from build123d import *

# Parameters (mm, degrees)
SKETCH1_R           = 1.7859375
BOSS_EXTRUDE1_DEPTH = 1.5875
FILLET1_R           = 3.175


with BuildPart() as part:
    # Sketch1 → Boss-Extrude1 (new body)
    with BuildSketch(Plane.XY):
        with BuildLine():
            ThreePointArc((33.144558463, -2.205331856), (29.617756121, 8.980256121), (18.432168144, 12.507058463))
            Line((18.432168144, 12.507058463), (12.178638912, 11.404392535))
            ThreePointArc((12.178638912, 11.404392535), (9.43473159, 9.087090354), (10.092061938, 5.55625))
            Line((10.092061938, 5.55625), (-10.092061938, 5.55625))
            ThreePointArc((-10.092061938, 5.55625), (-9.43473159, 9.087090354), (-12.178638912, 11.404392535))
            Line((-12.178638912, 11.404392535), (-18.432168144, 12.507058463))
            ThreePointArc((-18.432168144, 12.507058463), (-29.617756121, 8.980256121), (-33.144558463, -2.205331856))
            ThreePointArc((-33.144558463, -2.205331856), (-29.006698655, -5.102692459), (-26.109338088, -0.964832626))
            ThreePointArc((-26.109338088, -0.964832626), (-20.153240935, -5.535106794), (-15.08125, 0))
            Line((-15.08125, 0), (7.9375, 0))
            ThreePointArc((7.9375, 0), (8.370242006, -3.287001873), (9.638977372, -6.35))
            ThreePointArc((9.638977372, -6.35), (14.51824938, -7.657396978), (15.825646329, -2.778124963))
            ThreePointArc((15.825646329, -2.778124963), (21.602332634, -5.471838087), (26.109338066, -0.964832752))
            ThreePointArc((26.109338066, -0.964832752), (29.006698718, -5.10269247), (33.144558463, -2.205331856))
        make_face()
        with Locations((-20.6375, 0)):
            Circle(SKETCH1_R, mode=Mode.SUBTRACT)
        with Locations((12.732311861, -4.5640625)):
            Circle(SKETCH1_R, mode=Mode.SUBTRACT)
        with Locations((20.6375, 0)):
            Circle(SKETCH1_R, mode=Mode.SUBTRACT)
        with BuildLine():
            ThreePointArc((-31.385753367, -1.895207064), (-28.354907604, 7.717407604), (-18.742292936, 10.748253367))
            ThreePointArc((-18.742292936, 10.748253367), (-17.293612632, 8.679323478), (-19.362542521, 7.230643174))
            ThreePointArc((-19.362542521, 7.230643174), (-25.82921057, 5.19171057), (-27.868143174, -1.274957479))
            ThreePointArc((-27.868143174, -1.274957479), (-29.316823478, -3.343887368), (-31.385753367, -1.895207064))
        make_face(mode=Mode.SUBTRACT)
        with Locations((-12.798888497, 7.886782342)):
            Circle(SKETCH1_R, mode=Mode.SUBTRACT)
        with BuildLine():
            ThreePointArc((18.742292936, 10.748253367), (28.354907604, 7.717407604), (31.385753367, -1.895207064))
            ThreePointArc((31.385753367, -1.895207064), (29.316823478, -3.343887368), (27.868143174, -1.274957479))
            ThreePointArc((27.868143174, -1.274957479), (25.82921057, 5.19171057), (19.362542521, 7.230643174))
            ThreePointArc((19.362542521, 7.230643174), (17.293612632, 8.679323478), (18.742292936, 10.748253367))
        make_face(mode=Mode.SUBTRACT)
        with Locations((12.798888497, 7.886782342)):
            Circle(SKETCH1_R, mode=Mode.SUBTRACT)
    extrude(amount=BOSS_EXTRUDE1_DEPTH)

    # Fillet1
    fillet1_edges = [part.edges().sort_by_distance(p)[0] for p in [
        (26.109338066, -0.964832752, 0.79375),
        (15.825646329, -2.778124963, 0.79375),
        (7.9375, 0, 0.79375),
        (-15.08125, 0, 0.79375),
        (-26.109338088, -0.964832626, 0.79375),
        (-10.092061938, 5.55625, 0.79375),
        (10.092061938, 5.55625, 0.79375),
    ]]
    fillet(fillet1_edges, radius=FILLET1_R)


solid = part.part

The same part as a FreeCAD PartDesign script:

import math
import FreeCAD as App
import Part
import Sketcher

V = App.Vector
Q = App.Units.Quantity


def edges_at(feature, points):
    """Names of the edges that pass closest to the given points."""
    edges = feature.Shape.Edges
    near = lambda p: min(range(len(edges)), key=lambda i: edges[i].distToShape(Part.Vertex(*p))[0])
    return sorted({f"Edge{near(p) + 1}" for p in points})

doc = App.newDocument("Part")
body = doc.addObject("PartDesign::Body", "Body")

sketch1 = body.newObject("Sketcher::SketchObject", "Sketch")
sketch1.AttachmentSupport = (doc.getObject("XY_Plane"), [""])
sketch1.MapMode = "FlatFace"
sketch1.addGeometry([
    Part.ArcOfCircle(Part.Circle(V(20.6375, 0, 0), V(0, 0, 1), 12.7), math.radians(-10), math.radians(100)),
    Part.LineSegment(V(18.432168, 12.507058, 0), V(12.178639, 11.404393, 0)),
    Part.ArcOfCircle(Part.Circle(V(12.798888, 7.886782, 0), V(0, 0, 1), 3.571875), math.radians(100), math.radians(220.7279)),
    Part.LineSegment(V(10.092062, 5.55625, 0), V(-10.092062, 5.55625, 0)),
    Part.ArcOfCircle(Part.Circle(V(-12.798888, 7.886782, 0), V(0, 0, 1), 3.571875), math.radians(-40.7279), math.radians(80)),
    Part.LineSegment(V(-12.178639, 11.404393, 0), V(-18.432168, 12.507058, 0)),
    Part.ArcOfCircle(Part.Circle(V(-20.6375, 0, 0), V(0, 0, 1), 12.7), math.radians(80), math.radians(190)),
    Part.ArcOfCircle(Part.Circle(V(-29.626948, -1.585082, 0), V(0, 0, 1), 3.571875), math.radians(-170), math.radians(10.000001)),
    Part.ArcOfCircle(Part.Circle(V(-20.6375, 0, 0), V(0, 0, 1), 5.55625), math.radians(-170.000001), math.radians(0)),
    Part.LineSegment(V(-15.08125, 0, 0), V(7.9375, 0, 0)),
    Part.ArcOfCircle(Part.Circle(V(20.6375, 0, 0), V(0, 0, 1), 12.7), math.radians(180), math.radians(210)),
    Part.ArcOfCircle(Part.Circle(V(12.732312, -4.564063, 0), V(0, 0, 1), 3.571875), math.radians(-150), math.radians(30.000001)),
    Part.ArcOfCircle(Part.Circle(V(20.6375, 0, 0), V(0, 0, 1), 5.55625), math.radians(-150), math.radians(-10.000001)),
    Part.ArcOfCircle(Part.Circle(V(29.626948, -1.585082, 0), V(0, 0, 1), 3.571875), math.radians(170.000001), math.radians(350)),
    Part.Circle(V(-20.6375, 0, 0), V(0, 0, 1), 1.785937),
    Part.Circle(V(12.732312, -4.564063, 0), V(0, 0, 1), 1.785937),
    Part.Circle(V(20.6375, 0, 0), V(0, 0, 1), 1.785937),
    Part.ArcOfCircle(Part.Circle(V(-29.626948, -1.585082, 0), V(0, 0, 1), 1.785937), math.radians(-170), math.radians(10)),
    Part.ArcOfCircle(Part.Circle(V(-20.6375, 0, 0), V(0, 0, 1), 10.914062), math.radians(80), math.radians(190)),
    Part.ArcOfCircle(Part.Circle(V(-19.052418, 8.989448, 0), V(0, 0, 1), 1.785937), math.radians(-100), math.radians(80)),
    Part.ArcOfCircle(Part.Circle(V(-20.6375, 0, 0), V(0, 0, 1), 7.342187), math.radians(80), math.radians(190)),
    Part.Circle(V(-12.798888, 7.886782, 0), V(0, 0, 1), 1.785937),
    Part.ArcOfCircle(Part.Circle(V(19.052418, 8.989448, 0), V(0, 0, 1), 1.785937), math.radians(100), math.radians(280)),
    Part.ArcOfCircle(Part.Circle(V(20.6375, 0, 0), V(0, 0, 1), 10.914062), math.radians(-10), math.radians(100)),
    Part.ArcOfCircle(Part.Circle(V(29.626948, -1.585082, 0), V(0, 0, 1), 1.785937), math.radians(170), math.radians(350)),
    Part.ArcOfCircle(Part.Circle(V(20.6375, 0, 0), V(0, 0, 1), 7.342187), math.radians(-10), math.radians(100)),
    Part.Circle(V(12.798888, 7.886782, 0), V(0, 0, 1), 1.785937),
], False)
sketch1.addConstraint([
    Sketcher.Constraint("Tangent", 0, 2, 1, 1),
    Sketcher.Constraint("Tangent", 1, 2, 2, 1),
    Sketcher.Constraint("Coincident", 2, 2, 3, 1),
    Sketcher.Constraint("Coincident", 3, 2, 4, 1),
    Sketcher.Constraint("Tangent", 4, 2, 5, 1),
    Sketcher.Constraint("Tangent", 5, 2, 6, 1),
    Sketcher.Constraint("Tangent", 6, 2, 7, 1),
    Sketcher.Constraint("Tangent", 7, 2, 8, 1),
    Sketcher.Constraint("Coincident", 8, 2, 9, 1),
    Sketcher.Constraint("Coincident", 9, 2, 10, 1),
    Sketcher.Constraint("Tangent", 10, 2, 11, 1),
    Sketcher.Constraint("Tangent", 11, 2, 12, 1),
    Sketcher.Constraint("Tangent", 12, 2, 13, 1),
    Sketcher.Constraint("Tangent", 13, 2, 0, 1),
    Sketcher.Constraint("Tangent", 17, 1, 18, 2),
    Sketcher.Constraint("Tangent", 18, 1, 19, 2),
    Sketcher.Constraint("Tangent", 19, 1, 20, 1),
    Sketcher.Constraint("Tangent", 20, 2, 17, 2),
    Sketcher.Constraint("Tangent", 22, 1, 23, 2),
    Sketcher.Constraint("Tangent", 23, 1, 24, 2),
    Sketcher.Constraint("Tangent", 24, 1, 25, 1),
    Sketcher.Constraint("Tangent", 25, 2, 22, 2),
    Sketcher.Constraint("Horizontal", 3),
    Sketcher.Constraint("Horizontal", 9),
    Sketcher.Constraint("Coincident", 8, 3, 6, 3),
    Sketcher.Constraint("Coincident", 10, 3, 0, 3),
    Sketcher.Constraint("Coincident", 12, 3, 0, 3),
    Sketcher.Constraint("Coincident", 14, 3, 6, 3),
    Sketcher.Constraint("Coincident", 15, 3, 11, 3),
    Sketcher.Constraint("Coincident", 16, 3, 0, 3),
    Sketcher.Constraint("Coincident", 17, 3, 7, 3),
    Sketcher.Constraint("Coincident", 18, 3, 6, 3),
    Sketcher.Constraint("Coincident", 20, 3, 6, 3),
    Sketcher.Constraint("Coincident", 21, 3, 4, 3),
    Sketcher.Constraint("Coincident", 23, 3, 0, 3),
    Sketcher.Constraint("Coincident", 24, 3, 13, 3),
    Sketcher.Constraint("Coincident", 25, 3, 0, 3),
    Sketcher.Constraint("Coincident", 26, 3, 2, 3),
    Sketcher.Constraint("Equal", 2, 4),
    Sketcher.Constraint("Equal", 0, 6),
    Sketcher.Constraint("Equal", 4, 7),
    Sketcher.Constraint("Equal", 6, 10),
    Sketcher.Constraint("Equal", 7, 11),
    Sketcher.Constraint("Equal", 14, 15),
    Sketcher.Constraint("Equal", 15, 16),
    Sketcher.Constraint("Equal", 16, 17),
    Sketcher.Constraint("Equal", 19, 21),
    Sketcher.Constraint("Equal", 21, 22),
    Sketcher.Constraint("Equal", 24, 26),
    Sketcher.Constraint("Symmetric", 0, 3, 6, 3, -1, 1),
    Sketcher.Constraint("Symmetric", 2, 3, 4, 3, -2),
    Sketcher.Constraint("Symmetric", 7, 3, 13, 3, -2),
    Sketcher.Constraint("PointOnObject", 8, 2, -1),
    Sketcher.Constraint("Horizontal", 19, 3, 22, 3),
    Sketcher.Constraint("Radius", 0, Q("0.5 in")),
    Sketcher.Constraint("Diameter", 14, Q("0.140625 in")),
    Sketcher.Constraint("Angle", 1, Q("-170 deg")),
    Sketcher.Constraint("Radius", 2, Q("0.140625 in")),
    Sketcher.Constraint("Distance", 1, Q("0.25 in")),
    Sketcher.Constraint("DistanceX", 9, 1, 9, 2, Q("0.90625 in")),
    Sketcher.Constraint("DistanceY", 10, 2, -1, 1, Q("0.25 in")),
    Sketcher.Constraint("DistanceY", -1, 1, 2, 2, Q("0.21875 in")),
    Sketcher.Constraint("DistanceY", 2, 2, 22, 3, Q("3.433198 mm")),
    Sketcher.Constraint("DistanceY", 13, 2, 12, 2, Q("1.240499 mm")),
])
pad1 = body.newObject("PartDesign::Pad", "Pad")
pad1.Profile = sketch1
pad1.Length = Q("0.0625 in")
doc.recompute()

fillet = body.newObject("PartDesign::Fillet", "Fillet")
fillet.Base = (pad1, edges_at(pad1, [
    (26.109, -0.965, 0.794),
    (15.826, -2.778, 0.794),
    (7.938, 0, 0.794),
    (-15.081, 0, 0.794),
    (-26.109, -0.965, 0.794),
    (-10.092, 5.556, 0.794),
    (10.092, 5.556, 0.794),
]))
fillet.Radius = Q("0.125 in")

doc.recompute()
